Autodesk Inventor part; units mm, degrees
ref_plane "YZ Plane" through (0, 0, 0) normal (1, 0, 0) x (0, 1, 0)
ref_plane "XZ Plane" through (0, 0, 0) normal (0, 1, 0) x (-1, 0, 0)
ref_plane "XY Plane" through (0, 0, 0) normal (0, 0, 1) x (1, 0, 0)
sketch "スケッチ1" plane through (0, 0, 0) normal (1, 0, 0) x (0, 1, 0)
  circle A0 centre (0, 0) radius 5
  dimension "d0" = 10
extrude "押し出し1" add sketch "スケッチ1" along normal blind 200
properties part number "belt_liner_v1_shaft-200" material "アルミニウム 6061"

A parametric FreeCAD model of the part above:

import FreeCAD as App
import Part
import Sketcher
from FreeCAD import Vector
Q = App.Units.Quantity

doc = App.newDocument("Part")
body = doc.addObject("PartDesign::Body", "Body")

# Sketch on YZ plane
sketch1 = body.newObject("Sketcher::SketchObject", "Sketch")
sketch1.AttachmentSupport = (doc.getObject("YZ_Plane"), [""])
sketch1.MapMode = "FlatFace"
sketch1.addGeometry(Part.Circle(Vector(0, 0, 0), Vector(0, 0, 1), 5), False)
sketch1.addConstraint(Sketcher.Constraint("Coincident", 0, 3, -1, 1))
sketch1.addConstraint(Sketcher.Constraint("Diameter", 0, Q("10 mm")))
pad1 = body.newObject("PartDesign::Pad", "Pad")
pad1.Profile = sketch1
pad1.Length = 200

doc.recompute()
